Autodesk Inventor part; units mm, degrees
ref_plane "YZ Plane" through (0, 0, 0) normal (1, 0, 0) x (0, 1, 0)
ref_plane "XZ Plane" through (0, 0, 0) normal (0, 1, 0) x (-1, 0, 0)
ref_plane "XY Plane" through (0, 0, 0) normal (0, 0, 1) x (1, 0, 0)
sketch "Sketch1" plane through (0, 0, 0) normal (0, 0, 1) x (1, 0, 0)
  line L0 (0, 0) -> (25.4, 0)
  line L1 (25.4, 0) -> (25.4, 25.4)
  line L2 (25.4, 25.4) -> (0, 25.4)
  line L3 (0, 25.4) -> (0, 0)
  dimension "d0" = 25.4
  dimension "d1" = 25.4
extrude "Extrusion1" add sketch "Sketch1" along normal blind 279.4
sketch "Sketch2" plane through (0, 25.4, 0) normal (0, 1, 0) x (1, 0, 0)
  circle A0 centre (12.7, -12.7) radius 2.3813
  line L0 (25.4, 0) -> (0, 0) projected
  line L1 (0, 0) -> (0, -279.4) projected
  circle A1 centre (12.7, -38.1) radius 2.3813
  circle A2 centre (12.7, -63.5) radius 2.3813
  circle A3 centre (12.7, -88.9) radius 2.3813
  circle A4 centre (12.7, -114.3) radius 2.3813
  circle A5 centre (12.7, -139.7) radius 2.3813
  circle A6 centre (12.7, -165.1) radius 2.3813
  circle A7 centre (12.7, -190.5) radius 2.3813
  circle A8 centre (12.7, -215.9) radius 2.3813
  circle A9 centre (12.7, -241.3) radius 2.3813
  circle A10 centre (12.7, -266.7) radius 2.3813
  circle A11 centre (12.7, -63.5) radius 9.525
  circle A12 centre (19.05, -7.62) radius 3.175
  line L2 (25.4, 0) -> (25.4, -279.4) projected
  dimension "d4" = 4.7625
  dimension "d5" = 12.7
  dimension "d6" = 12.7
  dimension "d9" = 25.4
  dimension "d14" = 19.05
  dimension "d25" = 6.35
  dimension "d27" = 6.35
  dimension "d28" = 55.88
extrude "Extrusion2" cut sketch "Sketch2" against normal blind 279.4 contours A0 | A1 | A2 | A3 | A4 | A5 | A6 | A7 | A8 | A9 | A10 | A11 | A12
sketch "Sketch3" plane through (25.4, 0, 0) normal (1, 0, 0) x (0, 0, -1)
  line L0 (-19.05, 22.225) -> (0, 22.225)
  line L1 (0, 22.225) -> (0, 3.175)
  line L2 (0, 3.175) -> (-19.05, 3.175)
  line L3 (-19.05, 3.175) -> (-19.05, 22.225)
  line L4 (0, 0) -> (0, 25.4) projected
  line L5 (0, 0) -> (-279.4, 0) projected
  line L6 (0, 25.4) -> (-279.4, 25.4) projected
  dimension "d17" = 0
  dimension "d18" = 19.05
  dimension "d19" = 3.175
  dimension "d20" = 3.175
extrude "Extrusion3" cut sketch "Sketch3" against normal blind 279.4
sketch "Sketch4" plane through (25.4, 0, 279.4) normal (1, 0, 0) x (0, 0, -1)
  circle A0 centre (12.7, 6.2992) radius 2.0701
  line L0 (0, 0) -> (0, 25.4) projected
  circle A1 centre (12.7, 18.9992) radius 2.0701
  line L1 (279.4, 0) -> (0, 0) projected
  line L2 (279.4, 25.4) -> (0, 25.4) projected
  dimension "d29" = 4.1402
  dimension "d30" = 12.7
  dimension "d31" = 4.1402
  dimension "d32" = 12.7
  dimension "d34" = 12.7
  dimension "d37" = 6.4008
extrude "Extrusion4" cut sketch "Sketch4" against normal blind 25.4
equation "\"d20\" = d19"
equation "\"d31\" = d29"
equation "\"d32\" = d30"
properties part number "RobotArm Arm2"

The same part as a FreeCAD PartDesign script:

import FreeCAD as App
import Part
import Sketcher
Q = App.Units.Quantity


def add_polygon(sketch, points):
    """Adds a closed chain of lines whose ends are joined by coincident constraints."""
    first, n = sketch.GeometryCount, len(points)
    for a, b in zip(points, points[1:] + points[:1]):
        sketch.addGeometry(Part.LineSegment(App.Vector(*a, 0), App.Vector(*b, 0)), False)
    for i in range(n):
        sketch.addConstraint(Sketcher.Constraint("Coincident", first + i, 2, first + (i + 1) % n, 1))

doc = App.newDocument("Part")
params = doc.addObject("Spreadsheet::Sheet", "Params")
for row, (alias, value) in enumerate([
    ("sketch1_width", "1 in"),
    ("pad1_length", "11 in"),
    ("sketch2_diameter", "0.75 in"),
    ("sketch2_diameter2", "0.25 in"),
    ("sketch2_diameter3", "0.1875 in"),
    ("pocket1_length", "11 in"),
    ("sketch3_width", "0.75 in"),
    ("pocket2_length", "11 in"),
    ("sketch4_diameter", "0.163 in"),
    ("pocket3_length", "1 in"),
], start=1):
    params.set(f"A{row}", alias)
    params.set(f"B{row}", "=" + value)
    params.setAlias(f"B{row}", alias)

body = doc.addObject("PartDesign::Body", "Body")

# Sketch on XY plane
sketch1 = body.newObject("Sketcher::SketchObject", "Sketch")
sketch1.AttachmentSupport = (doc.getObject("XY_Plane"), [""])
sketch1.MapMode = "FlatFace"
add_polygon(sketch1, [(0, 25.4), (0, 0), (25.4, 0), (25.4, 25.4)])  # lines 0-3
sketch1.addConstraint([
    Sketcher.Constraint("Vertical", 0),
    Sketcher.Constraint("Horizontal", 1),
    Sketcher.Constraint("Vertical", 2),
    Sketcher.Constraint("Horizontal", 3),
    Sketcher.Constraint("Coincident", 0, 2, -1, 1),
    Sketcher.Constraint("Equal", 3, 0),
    Sketcher.Constraint("DistanceX", 1, 1, 1, 2, Q("1 in")),
])
sketch1.setExpression("Constraints[10]", "Params.sketch1_width")
pad1 = body.newObject("PartDesign::Pad", "Pad")
pad1.Profile = sketch1
pad1.setExpression("Length", "Params.pad1_length")

# Sketch on XZ plane
sketch2 = body.newObject("Sketcher::SketchObject", "Sketch001")
sketch2.AttachmentSupport = (doc.getObject("XZ_Plane"), [""])
sketch2.MapMode = "FlatFace"
sketch2.AttachmentOffset = App.Placement(App.Vector(0, 0, -1 * 25.4), App.Rotation())
sketch2.addGeometry([
    Part.Circle(App.Vector(12.7, 12.7, 0), App.Vector(0, 0, 1), 2.3813),  # 0
    Part.Circle(App.Vector(12.7, 38.1, 0), App.Vector(0, 0, 1), 2.3813),  # 1
    Part.Circle(App.Vector(12.7, 63.5, 0), App.Vector(0, 0, 1), 9.525),  # 2
    Part.Circle(App.Vector(12.7, 88.9, 0), App.Vector(0, 0, 1), 2.3813),  # 3
    Part.Circle(App.Vector(12.7, 114.3, 0), App.Vector(0, 0, 1), 2.3813),  # 4
    Part.Circle(App.Vector(12.7, 139.7, 0), App.Vector(0, 0, 1), 2.3813),  # 5
    Part.Circle(App.Vector(12.7, 165.1, 0), App.Vector(0, 0, 1), 2.3813),  # 6
    Part.Circle(App.Vector(12.7, 190.5, 0), App.Vector(0, 0, 1), 2.3813),  # 7
    Part.Circle(App.Vector(12.7, 215.9, 0), App.Vector(0, 0, 1), 2.3813),  # 8
    Part.Circle(App.Vector(12.7, 241.3, 0), App.Vector(0, 0, 1), 2.3813),  # 9
    Part.Circle(App.Vector(12.7, 266.7, 0), App.Vector(0, 0, 1), 2.3813),  # 10
    Part.Circle(App.Vector(19.05, 7.62, 0), App.Vector(0, 0, 1), 3.175),  # 11
], False)
sketch2.addConstraint([
    Sketcher.Constraint("Equal", 0, 1),
    Sketcher.Constraint("Equal", 1, 3),
    Sketcher.Constraint("Equal", 3, 4),
    Sketcher.Constraint("Equal", 4, 5),
    Sketcher.Constraint("Equal", 5, 6),
    Sketcher.Constraint("Equal", 6, 7),
    Sketcher.Constraint("Equal", 7, 8),
    Sketcher.Constraint("Equal", 8, 9),
    Sketcher.Constraint("Equal", 9, 10),
    Sketcher.Constraint("Vertical", 0, 3, 1, 3),
    Sketcher.Constraint("Vertical", 1, 3, 2, 3),
    Sketcher.Constraint("Vertical", 2, 3, 3, 3),
    Sketcher.Constraint("Vertical", 3, 3, 4, 3),
    Sketcher.Constraint("Vertical", 4, 3, 5, 3),
    Sketcher.Constraint("Vertical", 5, 3, 6, 3),
    Sketcher.Constraint("Vertical", 6, 3, 7, 3),
    Sketcher.Constraint("Vertical", 7, 3, 8, 3),
    Sketcher.Constraint("Vertical", 8, 3, 9, 3),
    Sketcher.Constraint("Vertical", 9, 3, 10, 3),
    Sketcher.Constraint("Diameter", 2, Q("0.75 in")),
    Sketcher.Constraint("Diameter", 11, Q("0.25 in")),
    Sketcher.Constraint("Diameter", 0, Q("0.1875 in")),
    Sketcher.Constraint("DistanceY", 0, 3, 1, 3, Q("1 in")),
    Sketcher.Constraint("DistanceY", 1, 3, 2, 3, Q("1 in")),
    Sketcher.Constraint("DistanceY", 2, 3, 3, 3, Q("1 in")),
    Sketcher.Constraint("DistanceY", 3, 3, 4, 3, Q("1 in")),
    Sketcher.Constraint("DistanceY", 4, 3, 5, 3, Q("1 in")),
    Sketcher.Constraint("DistanceY", 5, 3, 6, 3, Q("1 in")),
    Sketcher.Constraint("DistanceY", 6, 3, 7, 3, Q("1 in")),
    Sketcher.Constraint("DistanceY", 7, 3, 8, 3, Q("1 in")),
    Sketcher.Constraint("DistanceY", 8, 3, 9, 3, Q("1 in")),
    Sketcher.Constraint("DistanceY", 9, 3, 10, 3, Q("1 in")),
    Sketcher.Constraint("DistanceX", -1, 1, 0, 3, Q("0.5 in")),
    Sketcher.Constraint("DistanceY", -1, 1, 0, 3, Q("0.5 in")),
    Sketcher.Constraint("DistanceY", 11, 3, 2, 3, Q("2.2 in")),
    Sketcher.Constraint("DistanceX", -1, 1, 11, 3, Q("0.75 in")),
])
sketch2.setExpression("Constraints[19]", "Params.sketch2_diameter")
sketch2.setExpression("Constraints[20]", "Params.sketch2_diameter2")
sketch2.setExpression("Constraints[21]", "Params.sketch2_diameter3")
pocket1 = body.newObject("PartDesign::Pocket", "Pocket")
pocket1.Profile = sketch2
pocket1.setExpression("Length", "Params.pocket1_length")
pocket1.Reversed = True

# Sketch on YZ plane
sketch3 = body.newObject("Sketcher::SketchObject", "Sketch002")
sketch3.AttachmentSupport = (doc.getObject("YZ_Plane"), [""])
sketch3.MapMode = "FlatFace"
sketch3.AttachmentOffset = App.Placement(App.Vector(0, 0, 1 * 25.4), App.Rotation())
add_polygon(sketch3, [(22.225, 0), (22.225, 19.05), (3.175, 19.05), (3.175, 0)])  # lines 0-3
sketch3.addConstraint([
    Sketcher.Constraint("Vertical", 0),
    Sketcher.Constraint("Horizontal", 1),
    Sketcher.Constraint("Vertical", 2),
    Sketcher.Constraint("Horizontal", 3),
    Sketcher.Constraint("PointOnObject", 2, 2, -1),
    Sketcher.Constraint("Equal", 3, 0),
    Sketcher.Constraint("DistanceX", 1, 2, 1, 1, Q("0.75 in")),
    Sketcher.Constraint("DistanceX", -1, 1, 1, 2, Q("0.125 in")),
])
sketch3.setExpression("Constraints[10]", "Params.sketch3_width")
pocket2 = body.newObject("PartDesign::Pocket", "Pocket001")
pocket2.Profile = sketch3
pocket2.setExpression("Length", "Params.pocket2_length")

# Sketch on YZ plane
sketch4 = body.newObject("Sketcher::SketchObject", "Sketch003")
sketch4.AttachmentSupport = (doc.getObject("YZ_Plane"), [""])
sketch4.MapMode = "FlatFace"
sketch4.AttachmentOffset = App.Placement(App.Vector(0, 0, 1 * 25.4), App.Rotation())
sketch4.addGeometry([
    Part.Circle(App.Vector(6.2992, 266.7, 0), App.Vector(0, 0, 1), 2.0701),
    Part.Circle(App.Vector(18.9992, 266.7, 0), App.Vector(0, 0, 1), 2.0701),
], False)
sketch4.addConstraint([
    Sketcher.Constraint("Equal", 0, 1),
    Sketcher.Constraint("Horizontal", 0, 3, 1, 3),
    Sketcher.Constraint("Diameter", 0, Q("0.163 in")),
    Sketcher.Constraint("DistanceX", 0, 3, 1, 3, Q("0.5 in")),
    Sketcher.Constraint("DistanceY", -1, 1, 0, 3, Q("10.5 in")),
    Sketcher.Constraint("DistanceX", -1, 1, 0, 3, Q("0.248 in")),
])
sketch4.setExpression("Constraints[2]", "Params.sketch4_diameter")
pocket3 = body.newObject("PartDesign::Pocket", "Pocket002")
pocket3.Profile = sketch4
pocket3.setExpression("Length", "Params.pocket3_length")

doc.recompute()
